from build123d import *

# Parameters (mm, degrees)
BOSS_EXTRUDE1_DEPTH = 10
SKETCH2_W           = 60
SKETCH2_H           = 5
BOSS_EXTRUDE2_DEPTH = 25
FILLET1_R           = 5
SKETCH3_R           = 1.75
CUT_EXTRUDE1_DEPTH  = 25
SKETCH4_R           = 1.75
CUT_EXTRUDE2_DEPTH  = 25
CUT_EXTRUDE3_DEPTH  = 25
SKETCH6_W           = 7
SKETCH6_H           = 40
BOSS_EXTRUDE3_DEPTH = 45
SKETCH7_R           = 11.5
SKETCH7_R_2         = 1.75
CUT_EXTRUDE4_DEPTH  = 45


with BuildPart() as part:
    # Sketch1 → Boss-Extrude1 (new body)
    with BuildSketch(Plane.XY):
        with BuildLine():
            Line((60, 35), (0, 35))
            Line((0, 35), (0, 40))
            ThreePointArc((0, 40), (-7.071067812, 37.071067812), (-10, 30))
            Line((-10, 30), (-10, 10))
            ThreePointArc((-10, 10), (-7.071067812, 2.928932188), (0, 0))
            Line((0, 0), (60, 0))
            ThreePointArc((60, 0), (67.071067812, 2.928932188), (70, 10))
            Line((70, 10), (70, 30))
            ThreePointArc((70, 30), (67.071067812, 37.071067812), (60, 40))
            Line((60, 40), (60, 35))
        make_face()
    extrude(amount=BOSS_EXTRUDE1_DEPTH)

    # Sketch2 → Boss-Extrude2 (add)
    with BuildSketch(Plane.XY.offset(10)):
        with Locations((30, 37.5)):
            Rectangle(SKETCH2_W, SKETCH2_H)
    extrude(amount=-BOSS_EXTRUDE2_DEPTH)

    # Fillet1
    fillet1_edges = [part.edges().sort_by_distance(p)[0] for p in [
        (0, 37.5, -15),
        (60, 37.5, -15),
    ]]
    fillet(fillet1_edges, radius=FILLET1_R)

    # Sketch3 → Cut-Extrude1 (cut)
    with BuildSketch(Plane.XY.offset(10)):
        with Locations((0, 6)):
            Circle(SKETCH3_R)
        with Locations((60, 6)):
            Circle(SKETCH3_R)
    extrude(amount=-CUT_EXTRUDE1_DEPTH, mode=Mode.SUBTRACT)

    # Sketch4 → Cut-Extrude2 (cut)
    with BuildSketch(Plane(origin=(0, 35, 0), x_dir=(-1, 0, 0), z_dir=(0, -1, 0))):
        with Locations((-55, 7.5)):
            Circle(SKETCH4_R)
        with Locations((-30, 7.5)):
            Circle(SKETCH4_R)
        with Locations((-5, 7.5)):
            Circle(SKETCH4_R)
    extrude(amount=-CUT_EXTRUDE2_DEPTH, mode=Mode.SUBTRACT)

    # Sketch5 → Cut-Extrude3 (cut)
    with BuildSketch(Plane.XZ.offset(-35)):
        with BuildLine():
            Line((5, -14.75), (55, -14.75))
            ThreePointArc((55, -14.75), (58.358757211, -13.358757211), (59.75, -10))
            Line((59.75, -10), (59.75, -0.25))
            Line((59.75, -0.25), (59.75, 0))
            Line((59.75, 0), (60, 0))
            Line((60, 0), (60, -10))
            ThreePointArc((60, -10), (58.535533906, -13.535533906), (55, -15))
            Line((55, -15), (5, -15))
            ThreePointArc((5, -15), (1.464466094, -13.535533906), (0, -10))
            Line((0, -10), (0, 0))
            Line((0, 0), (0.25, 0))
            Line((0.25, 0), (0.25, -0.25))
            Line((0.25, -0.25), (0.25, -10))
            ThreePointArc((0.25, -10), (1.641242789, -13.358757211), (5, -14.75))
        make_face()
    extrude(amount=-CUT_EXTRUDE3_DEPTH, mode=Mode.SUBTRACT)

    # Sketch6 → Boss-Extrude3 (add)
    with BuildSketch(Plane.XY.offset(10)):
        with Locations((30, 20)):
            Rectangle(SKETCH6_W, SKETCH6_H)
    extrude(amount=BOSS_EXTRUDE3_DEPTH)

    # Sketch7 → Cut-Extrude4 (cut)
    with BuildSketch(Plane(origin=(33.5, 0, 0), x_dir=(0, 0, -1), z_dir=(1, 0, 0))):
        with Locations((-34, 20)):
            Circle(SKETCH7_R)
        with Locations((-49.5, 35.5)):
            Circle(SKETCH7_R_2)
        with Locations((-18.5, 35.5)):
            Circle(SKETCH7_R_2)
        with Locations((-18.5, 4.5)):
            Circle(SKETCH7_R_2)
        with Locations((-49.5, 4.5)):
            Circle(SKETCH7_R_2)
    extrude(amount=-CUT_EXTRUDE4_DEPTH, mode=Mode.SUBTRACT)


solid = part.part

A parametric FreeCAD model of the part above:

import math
import FreeCAD as App
import Part
import Sketcher
Q = App.Units.Quantity


def edges_at(feature, points):
    """Names of the edges that pass closest to the given points."""
    edges = feature.Shape.Edges
    near = lambda p: min(range(len(edges)), key=lambda i: edges[i].distToShape(Part.Vertex(*p))[0])
    return sorted({f"Edge{near(p) + 1}" for p in points})


def add_polygon(sketch, points):
    """Adds a closed chain of lines whose ends are joined by coincident constraints."""
    first, n = sketch.GeometryCount, len(points)
    for a, b in zip(points, points[1:] + points[:1]):
        sketch.addGeometry(Part.LineSegment(App.Vector(*a, 0), App.Vector(*b, 0)), False)
    for i in range(n):
        sketch.addConstraint(Sketcher.Constraint("Coincident", first + i, 2, first + (i + 1) % n, 1))

doc = App.newDocument("Part")
body = doc.addObject("PartDesign::Body", "Body")

# Sketch on XY plane
sketch1 = body.newObject("Sketcher::SketchObject", "Sketch")
sketch1.AttachmentSupport = (doc.getObject("XY_Plane"), [""])
sketch1.MapMode = "FlatFace"
sketch1.addGeometry([
    Part.LineSegment(App.Vector(60, 35, 0), App.Vector(0, 35, 0)),  # 0
    Part.LineSegment(App.Vector(0, 35, 0), App.Vector(0, 40, 0)),  # 1
    Part.ArcOfCircle(Part.Circle(App.Vector(0, 30, 0), App.Vector(0, 0, 1), 10), math.radians(90), math.radians(180)),  # 2
    Part.LineSegment(App.Vector(-10, 30, 0), App.Vector(-10, 10, 0)),  # 3
    Part.ArcOfCircle(Part.Circle(App.Vector(0, 10, 0), App.Vector(0, 0, 1), 10), math.radians(180), math.radians(270)),  # 4
    Part.LineSegment(App.Vector(0, 0, 0), App.Vector(60, 0, 0)),  # 5
    Part.ArcOfCircle(Part.Circle(App.Vector(60, 10, 0), App.Vector(0, 0, 1), 10), math.radians(-90), math.radians(0)),  # 6
    Part.LineSegment(App.Vector(70, 10, 0), App.Vector(70, 30, 0)),  # 7
    Part.ArcOfCircle(Part.Circle(App.Vector(60, 30, 0), App.Vector(0, 0, 1), 10), math.radians(0), math.radians(90)),  # 8
    Part.LineSegment(App.Vector(60, 40, 0), App.Vector(60, 35, 0)),  # 9
], False)
sketch1.addConstraint([
    Sketcher.Constraint("Coincident", 0, 2, 1, 1),
    Sketcher.Constraint("Coincident", 1, 2, 2, 1),
    Sketcher.Constraint("Tangent", 2, 2, 3, 1),
    Sketcher.Constraint("Tangent", 3, 2, 4, 1),
    Sketcher.Constraint("Tangent", 4, 2, 5, 1),
    Sketcher.Constraint("Tangent", 5, 2, 6, 1),
    Sketcher.Constraint("Tangent", 6, 2, 7, 1),
    Sketcher.Constraint("Tangent", 7, 2, 8, 1),
    Sketcher.Constraint("Coincident", 8, 2, 9, 1),
    Sketcher.Constraint("Coincident", 9, 2, 0, 1),
    Sketcher.Constraint("Horizontal", 0),
    Sketcher.Constraint("Vertical", 1),
    Sketcher.Constraint("Vertical", 3),
    Sketcher.Constraint("Horizontal", 5),
    Sketcher.Constraint("Vertical", 7),
    Sketcher.Constraint("Vertical", 9),
    Sketcher.Constraint("Coincident", 4, 2, -1, 1),
    Sketcher.Constraint("Equal", 2, 4),
    Sketcher.Constraint("Equal", 4, 6),
    Sketcher.Constraint("Equal", 6, 8),
    Sketcher.Constraint("PointOnObject", 0, 2, -2),
    Sketcher.Constraint("Horizontal", 2, 3, 8, 3),
    Sketcher.Constraint("Vertical", 5, 2, 8, 2),
    Sketcher.Constraint("Radius", 2, Q("10 mm")),
    Sketcher.Constraint("DistanceX", 0, 2, 0, 1, Q("60 mm")),
    Sketcher.Constraint("DistanceY", 1, 1, 1, 2, Q("5 mm")),
    Sketcher.Constraint("DistanceY", 3, 2, 3, 1, Q("20 mm")),
])
pad1 = body.newObject("PartDesign::Pad", "Pad")
pad1.Profile = sketch1
pad1.Length = 10

# Sketch on XY plane
sketch2 = body.newObject("Sketcher::SketchObject", "Sketch001")
sketch2.AttachmentSupport = (doc.getObject("XY_Plane"), [""])
sketch2.MapMode = "FlatFace"
sketch2.AttachmentOffset = App.Placement(App.Vector(0, 0, 10), App.Rotation())
add_polygon(sketch2, [(0, 40), (0, 35), (60, 35), (60, 40)])  # lines 0-3
sketch2.addConstraint([
    Sketcher.Constraint("Vertical", 0),
    Sketcher.Constraint("Horizontal", 1),
    Sketcher.Constraint("Vertical", 2),
    Sketcher.Constraint("Horizontal", 3),
    Sketcher.Constraint("PointOnObject", 0, 2, -2),
    Sketcher.Constraint("DistanceX", 1, 1, 1, 2, Q("60 mm")),
    Sketcher.Constraint("DistanceY", 0, 2, 0, 1, Q("5 mm")),
    Sketcher.Constraint("DistanceY", -1, 1, 0, 2, Q("35 mm")),
])
pad2 = body.newObject("PartDesign::Pad", "Pad001")
pad2.Profile = sketch2
pad2.Length = 25
pad2.Reversed = True
doc.recompute()

fillet = body.newObject("PartDesign::Fillet", "Fillet")
fillet.Base = (pad2, edges_at(pad2, [(0, 37.5, -15), (60, 37.5, -15)]))
fillet.Radius = 5

# Sketch on XY plane
sketch3 = body.newObject("Sketcher::SketchObject", "Sketch002")
sketch3.AttachmentSupport = (doc.getObject("XY_Plane"), [""])
sketch3.MapMode = "FlatFace"
sketch3.AttachmentOffset = App.Placement(App.Vector(0, 0, 10), App.Rotation())
sketch3.addGeometry([
    Part.Circle(App.Vector(0, 6, 0), App.Vector(0, 0, 1), 1.75),
    Part.Circle(App.Vector(60, 6, 0), App.Vector(0, 0, 1), 1.75),
], False)
sketch3.addConstraint([
    Sketcher.Constraint("Equal", 0, 1),
    Sketcher.Constraint("PointOnObject", 0, 3, -2),
    Sketcher.Constraint("Horizontal", 0, 3, 1, 3),
    Sketcher.Constraint("Diameter", 0, Q("3.5 mm")),
    Sketcher.Constraint("DistanceY", -1, 1, 0, 3, Q("6 mm")),
    Sketcher.Constraint("DistanceX", -1, 1, 1, 3, Q("60 mm")),
])
pocket1 = body.newObject("PartDesign::Pocket", "Pocket")
pocket1.Profile = sketch3
pocket1.Length = 25

# Sketch on XZ plane
sketch4 = body.newObject("Sketcher::SketchObject", "Sketch003")
sketch4.AttachmentSupport = (doc.getObject("XZ_Plane"), [""])
sketch4.MapMode = "FlatFace"
sketch4.AttachmentOffset = App.Placement(App.Vector(0, 0, -35), App.Rotation())
sketch4.addGeometry([
    Part.Circle(App.Vector(55, -7.5, 0), App.Vector(0, 0, 1), 1.75),
    Part.Circle(App.Vector(30, -7.5, 0), App.Vector(0, 0, 1), 1.75),
    Part.Circle(App.Vector(5, -7.5, 0), App.Vector(0, 0, 1), 1.75),
], False)
sketch4.addConstraint([
    Sketcher.Constraint("Equal", 0, 1),
    Sketcher.Constraint("Equal", 1, 2),
    Sketcher.Constraint("Horizontal", 0, 3, 1, 3),
    Sketcher.Constraint("Horizontal", 1, 3, 2, 3),
    Sketcher.Constraint("Diameter", 0, Q("3.5 mm")),
    Sketcher.Constraint("DistanceX", -1, 1, 0, 3, Q("55 mm")),
    Sketcher.Constraint("DistanceX", -1, 1, 1, 3, Q("30 mm")),
    Sketcher.Constraint("DistanceX", -1, 1, 2, 3, Q("5 mm")),
    Sketcher.Constraint("DistanceY", 0, 3, -1, 1, Q("7.5 mm")),
])
pocket2 = body.newObject("PartDesign::Pocket", "Pocket001")
pocket2.Profile = sketch4
pocket2.Length = 25

# Sketch on XZ plane
sketch5 = body.newObject("Sketcher::SketchObject", "Sketch004")
sketch5.AttachmentSupport = (doc.getObject("XZ_Plane"), [""])
sketch5.MapMode = "FlatFace"
sketch5.AttachmentOffset = App.Placement(App.Vector(0, 0, -35), App.Rotation())
sketch5.addGeometry([
    Part.LineSegment(App.Vector(55, -14.75, 0), App.Vector(5, -14.75, 0)),  # 0
    Part.ArcOfCircle(Part.Circle(App.Vector(5, -10, 0), App.Vector(0, 0, 1), 4.75), math.radians(180), math.radians(270)),  # 1
    Part.LineSegment(App.Vector(0.25, -10, 0), App.Vector(0.25, 0, 0)),  # 2
    Part.LineSegment(App.Vector(0.25, 0, 0), App.Vector(0, 0, 0)),  # 3
    Part.LineSegment(App.Vector(0, 0, 0), App.Vector(0, -10, 0)),  # 4
    Part.ArcOfCircle(Part.Circle(App.Vector(5, -10, 0), App.Vector(0, 0, 1), 5), math.radians(180), math.radians(270)),  # 5
    Part.LineSegment(App.Vector(5, -15, 0), App.Vector(55, -15, 0)),  # 6
    Part.ArcOfCircle(Part.Circle(App.Vector(55, -10, 0), App.Vector(0, 0, 1), 5), math.radians(-90), math.radians(0)),  # 7
    Part.LineSegment(App.Vector(60, -10, 0), App.Vector(60, 0, 0)),  # 8
    Part.LineSegment(App.Vector(60, 0, 0), App.Vector(59.75, 0, 0)),  # 9
    Part.LineSegment(App.Vector(59.75, 0, 0), App.Vector(59.75, -10, 0)),  # 10
    Part.ArcOfCircle(Part.Circle(App.Vector(55, -10, 0), App.Vector(0, 0, 1), 4.75), math.radians(-90), math.radians(0)),  # 11
], False)
sketch5.addConstraint([
    Sketcher.Constraint("Tangent", 0, 2, 1, 2),
    Sketcher.Constraint("Tangent", 1, 1, 2, 1),
    Sketcher.Constraint("Coincident", 2, 2, 3, 1),
    Sketcher.Constraint("Coincident", 3, 2, 4, 1),
    Sketcher.Constraint("Tangent", 4, 2, 5, 1),
    Sketcher.Constraint("Tangent", 5, 2, 6, 1),
    Sketcher.Constraint("Tangent", 6, 2, 7, 1),
    Sketcher.Constraint("Tangent", 7, 2, 8, 1),
    Sketcher.Constraint("Coincident", 8, 2, 9, 1),
    Sketcher.Constraint("Coincident", 9, 2, 10, 1),
    Sketcher.Constraint("Tangent", 10, 2, 11, 2),
    Sketcher.Constraint("Tangent", 11, 1, 0, 1),
    Sketcher.Constraint("Horizontal", 0),
    Sketcher.Constraint("Vertical", 2),
    Sketcher.Constraint("Horizontal", 3),
    Sketcher.Constraint("Vertical", 4),
    Sketcher.Constraint("Horizontal", 6),
    Sketcher.Constraint("Vertical", 8),
    Sketcher.Constraint("Horizontal", 9),
    Sketcher.Constraint("Vertical", 10),
    Sketcher.Constraint("Coincident", 3, 2, -1, 1),
    Sketcher.Constraint("Coincident", 5, 3, 1, 3),
    Sketcher.Constraint("Coincident", 11, 3, 7, 3),
    Sketcher.Constraint("Equal", 5, 7),
    Sketcher.Constraint("PointOnObject", 8, 2, -1),
    Sketcher.Constraint("Radius", 5, Q("5 mm")),
    Sketcher.Constraint("DistanceX", 0, 2, 0, 1, Q("50 mm")),
    Sketcher.Constraint("DistanceY", 2, 1, 2, 2, Q("10 mm")),
    Sketcher.Constraint("Radius", 1, Q("4.75 mm")),
])
pocket3 = body.newObject("PartDesign::Pocket", "Pocket002")
pocket3.Profile = sketch5
pocket3.Length = 25

# Sketch on XY plane
sketch6 = body.newObject("Sketcher::SketchObject", "Sketch005")
sketch6.AttachmentSupport = (doc.getObject("XY_Plane"), [""])
sketch6.MapMode = "FlatFace"
sketch6.AttachmentOffset = App.Placement(App.Vector(0, 0, 10), App.Rotation())
add_polygon(sketch6, [(26.5, 40), (26.5, 0), (33.5, 0), (33.5, 40)])  # lines 0-3
sketch6.addConstraint([
    Sketcher.Constraint("Vertical", 0),
    Sketcher.Constraint("Horizontal", 1),
    Sketcher.Constraint("Vertical", 2),
    Sketcher.Constraint("Horizontal", 3),
    Sketcher.Constraint("PointOnObject", 0, 2, -1),
    Sketcher.Constraint("DistanceX", 1, 1, 1, 2, Q("7 mm")),
    Sketcher.Constraint("DistanceY", 0, 2, 0, 1, Q("40 mm")),
    Sketcher.Constraint("DistanceX", -1, 1, 0, 2, Q("26.5 mm")),
])
pad3 = body.newObject("PartDesign::Pad", "Pad002")
pad3.Profile = sketch6
pad3.Length = 45

# Sketch on YZ plane
sketch7 = body.newObject("Sketcher::SketchObject", "Sketch006")
sketch7.AttachmentSupport = (doc.getObject("YZ_Plane"), [""])
sketch7.MapMode = "FlatFace"
sketch7.AttachmentOffset = App.Placement(App.Vector(0, 0, 33.5), App.Rotation())
sketch7.addGeometry([
    Part.Circle(App.Vector(20, 34, 0), App.Vector(0, 0, 1), 11.5),  # 0
    Part.Circle(App.Vector(35.5, 49.5, 0), App.Vector(0, 0, 1), 1.75),  # 1
    Part.Circle(App.Vector(35.5, 18.5, 0), App.Vector(0, 0, 1), 1.75),  # 2
    Part.Circle(App.Vector(4.5, 18.5, 0), App.Vector(0, 0, 1), 1.75),  # 3
    Part.Circle(App.Vector(4.5, 49.5, 0), App.Vector(0, 0, 1), 1.75),  # 4
], False)
sketch7.addConstraint([
    Sketcher.Constraint("Equal", 1, 2),
    Sketcher.Constraint("Equal", 2, 3),
    Sketcher.Constraint("Equal", 3, 4),
    Sketcher.Constraint("Horizontal", 2, 3, 3, 3),
    Sketcher.Constraint("Horizontal", 1, 3, 4, 3),
    Sketcher.Constraint("Vertical", 1, 3, 2, 3),
    Sketcher.Constraint("Vertical", 3, 3, 4, 3),
    Sketcher.Constraint("Diameter", 0, Q("23 mm")),
    Sketcher.Constraint("Diameter", 1, Q("3.5 mm")),
    Sketcher.Constraint("DistanceX", -1, 1, 0, 3, Q("20 mm")),
    Sketcher.Constraint("DistanceY", -1, 1, 0, 3, Q("34 mm")),
    Sketcher.Constraint("DistanceY", 2, 3, 1, 3, Q("31 mm")),
    Sketcher.Constraint("DistanceX", 3, 3, 2, 3, Q("31 mm")),
    Sketcher.Constraint("DistanceX", -1, 1, 1, 3, Q("35.5 mm")),
    Sketcher.Constraint("DistanceY", -1, 1, 1, 3, Q("49.5 mm")),
])
pocket4 = body.newObject("PartDesign::Pocket", "Pocket003")
pocket4.Profile = sketch7
pocket4.Length = 45

doc.recompute()
